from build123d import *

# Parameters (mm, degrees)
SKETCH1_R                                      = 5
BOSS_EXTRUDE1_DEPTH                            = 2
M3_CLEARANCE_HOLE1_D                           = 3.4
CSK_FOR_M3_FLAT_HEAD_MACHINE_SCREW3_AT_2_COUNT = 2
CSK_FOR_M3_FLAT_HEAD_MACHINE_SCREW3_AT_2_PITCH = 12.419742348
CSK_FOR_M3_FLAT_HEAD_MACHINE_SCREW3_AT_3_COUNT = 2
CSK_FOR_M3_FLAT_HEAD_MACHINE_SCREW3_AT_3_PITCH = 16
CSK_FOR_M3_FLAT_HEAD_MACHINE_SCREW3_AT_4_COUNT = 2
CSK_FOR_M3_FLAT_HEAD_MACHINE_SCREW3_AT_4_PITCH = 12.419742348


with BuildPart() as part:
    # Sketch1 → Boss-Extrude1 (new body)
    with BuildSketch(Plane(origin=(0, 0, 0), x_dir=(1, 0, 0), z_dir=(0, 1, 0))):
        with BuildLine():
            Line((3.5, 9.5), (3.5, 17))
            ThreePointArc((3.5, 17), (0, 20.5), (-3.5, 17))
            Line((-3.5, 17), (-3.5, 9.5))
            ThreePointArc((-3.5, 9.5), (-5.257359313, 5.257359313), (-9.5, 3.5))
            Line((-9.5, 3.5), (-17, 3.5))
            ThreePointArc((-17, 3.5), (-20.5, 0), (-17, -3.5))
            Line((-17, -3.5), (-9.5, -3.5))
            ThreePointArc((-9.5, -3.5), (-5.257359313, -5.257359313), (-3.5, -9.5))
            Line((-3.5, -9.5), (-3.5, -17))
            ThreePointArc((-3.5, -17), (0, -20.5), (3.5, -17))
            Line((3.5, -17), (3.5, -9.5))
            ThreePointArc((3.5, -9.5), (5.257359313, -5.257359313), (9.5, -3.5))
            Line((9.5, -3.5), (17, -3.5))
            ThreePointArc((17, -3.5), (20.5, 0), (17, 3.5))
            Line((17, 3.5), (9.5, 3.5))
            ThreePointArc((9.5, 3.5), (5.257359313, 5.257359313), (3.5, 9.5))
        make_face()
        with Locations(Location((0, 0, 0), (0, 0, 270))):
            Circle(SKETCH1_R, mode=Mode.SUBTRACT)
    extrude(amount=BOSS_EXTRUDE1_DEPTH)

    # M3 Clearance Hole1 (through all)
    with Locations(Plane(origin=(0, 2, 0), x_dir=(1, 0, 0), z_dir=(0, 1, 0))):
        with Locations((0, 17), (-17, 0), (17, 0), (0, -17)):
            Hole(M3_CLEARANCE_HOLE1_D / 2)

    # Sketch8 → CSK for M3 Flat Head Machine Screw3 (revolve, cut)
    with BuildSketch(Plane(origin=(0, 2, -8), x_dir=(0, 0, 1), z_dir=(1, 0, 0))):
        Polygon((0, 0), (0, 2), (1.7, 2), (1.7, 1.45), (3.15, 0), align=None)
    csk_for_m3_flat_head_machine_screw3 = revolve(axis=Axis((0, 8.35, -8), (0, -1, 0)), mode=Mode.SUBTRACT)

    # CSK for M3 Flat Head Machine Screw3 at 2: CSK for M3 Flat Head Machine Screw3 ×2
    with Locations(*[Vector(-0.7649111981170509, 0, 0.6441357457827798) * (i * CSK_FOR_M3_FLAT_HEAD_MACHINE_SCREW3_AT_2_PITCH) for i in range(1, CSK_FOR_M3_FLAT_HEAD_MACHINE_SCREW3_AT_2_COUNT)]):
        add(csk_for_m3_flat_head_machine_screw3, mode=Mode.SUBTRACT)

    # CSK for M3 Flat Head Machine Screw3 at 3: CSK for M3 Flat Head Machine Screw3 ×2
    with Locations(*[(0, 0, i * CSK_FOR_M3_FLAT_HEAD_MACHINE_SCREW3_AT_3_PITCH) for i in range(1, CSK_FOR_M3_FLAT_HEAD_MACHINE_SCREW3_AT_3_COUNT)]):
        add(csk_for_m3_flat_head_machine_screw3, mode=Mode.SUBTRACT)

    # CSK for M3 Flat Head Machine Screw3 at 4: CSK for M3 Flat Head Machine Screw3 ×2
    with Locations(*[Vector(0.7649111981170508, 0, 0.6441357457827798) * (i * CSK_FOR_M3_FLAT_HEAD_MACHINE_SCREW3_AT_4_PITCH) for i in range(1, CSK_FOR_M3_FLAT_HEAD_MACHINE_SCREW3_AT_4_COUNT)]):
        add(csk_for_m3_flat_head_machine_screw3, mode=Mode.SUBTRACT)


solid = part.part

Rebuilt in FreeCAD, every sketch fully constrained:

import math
import FreeCAD as App
import Part
import Sketcher
from FreeCAD import Vector
Q = App.Units.Quantity


def add_polygon(sketch, points):
    """Adds a closed chain of lines whose ends are joined by coincident constraints."""
    first, n = sketch.GeometryCount, len(points)
    for a, b in zip(points, points[1:] + points[:1]):
        sketch.addGeometry(Part.LineSegment(App.Vector(*a, 0), App.Vector(*b, 0)), False)
    for i in range(n):
        sketch.addConstraint(Sketcher.Constraint("Coincident", first + i, 2, first + (i + 1) % n, 1))

doc = App.newDocument("Part")
params = doc.addObject("Spreadsheet::Sheet", "Params")
for row, (alias, value) in enumerate([
    ("sketch1_diameter", "10 mm"),
    ("sketch1_radius", "6 mm"),
    ("sketch1_radius2", "3.5 mm"),
    ("sketch1_width", "7.5 mm"),
    ("pad1_length", "2 mm"),
    ("sketch2_diameter", "3.4 mm"),
    ("hole_diameter", "3.4 mm"),
    ("sketch3_width", "2 mm"),
    ("sketch3_height", "1.7 mm"),
    ("sketch3_width2", "0.55 mm"),
    ("groove_angle", "360 deg"),
    ("linearpattern_pitch", "12.419742 mm"),
    ("linearpattern2_pitch", "16 mm"),
    ("linearpattern3_pitch", "12.419742 mm"),
], start=1):
    params.set(f"A{row}", alias)
    params.set(f"B{row}", "=" + value)
    params.setAlias(f"B{row}", alias)

body = doc.addObject("PartDesign::Body", "Body")

# Sketch on XZ plane
sketch1 = body.newObject("Sketcher::SketchObject", "Sketch")
sketch1.AttachmentSupport = (doc.getObject("XZ_Plane"), [""])
sketch1.MapMode = "FlatFace"
sketch1.addGeometry([
    Part.LineSegment(Vector(3.5, -9.5, 0), Vector(3.5, -17, 0)),  # 0
    Part.ArcOfCircle(Part.Circle(Vector(0, -17, 0), Vector(0, 0, 1), 3.5), math.radians(180), math.radians(360)),  # 1
    Part.LineSegment(Vector(-3.5, -17, 0), Vector(-3.5, -9.5, 0)),  # 2
    Part.ArcOfCircle(Part.Circle(Vector(-9.5, -9.5, 0), Vector(0, 0, 1), 6), math.radians(0), math.radians(90)),  # 3
    Part.LineSegment(Vector(-9.5, -3.5, 0), Vector(-17, -3.5, 0)),  # 4
    Part.ArcOfCircle(Part.Circle(Vector(-17, 0, 0), Vector(0, 0, 1), 3.5), math.radians(90), math.radians(270)),  # 5
    Part.LineSegment(Vector(-17, 3.5, 0), Vector(-9.5, 3.5, 0)),  # 6
    Part.ArcOfCircle(Part.Circle(Vector(-9.5, 9.5, 0), Vector(0, 0, 1), 6), math.radians(-90), math.radians(0)),  # 7
    Part.LineSegment(Vector(-3.5, 9.5, 0), Vector(-3.5, 17, 0)),  # 8
    Part.ArcOfCircle(Part.Circle(Vector(0, 17, 0), Vector(0, 0, 1), 3.5), math.radians(0), math.radians(180)),  # 9
    Part.LineSegment(Vector(3.5, 17, 0), Vector(3.5, 9.5, 0)),  # 10
    Part.ArcOfCircle(Part.Circle(Vector(9.5, 9.5, 0), Vector(0, 0, 1), 6), math.radians(180), math.radians(270)),  # 11
    Part.LineSegment(Vector(9.5, 3.5, 0), Vector(17, 3.5, 0)),  # 12
    Part.ArcOfCircle(Part.Circle(Vector(17, 0, 0), Vector(0, 0, 1), 3.5), math.radians(-90), math.radians(90)),  # 13
    Part.LineSegment(Vector(17, -3.5, 0), Vector(9.5, -3.5, 0)),  # 14
    Part.ArcOfCircle(Part.Circle(Vector(9.5, -9.5, 0), Vector(0, 0, 1), 6), math.radians(90), math.radians(180)),  # 15
    Part.Circle(Vector(0, 0, 0), Vector(0, 0, 1), 5),  # 16
], False)
sketch1.addConstraint([
    Sketcher.Constraint("Tangent", 0, 2, 1, 2),
    Sketcher.Constraint("Tangent", 1, 1, 2, 1),
    Sketcher.Constraint("Tangent", 2, 2, 3, 1),
    Sketcher.Constraint("Tangent", 3, 2, 4, 1),
    Sketcher.Constraint("Tangent", 4, 2, 5, 2),
    Sketcher.Constraint("Tangent", 5, 1, 6, 1),
    Sketcher.Constraint("Tangent", 6, 2, 7, 1),
    Sketcher.Constraint("Tangent", 7, 2, 8, 1),
    Sketcher.Constraint("Tangent", 8, 2, 9, 2),
    Sketcher.Constraint("Tangent", 9, 1, 10, 1),
    Sketcher.Constraint("Tangent", 10, 2, 11, 1),
    Sketcher.Constraint("Tangent", 11, 2, 12, 1),
    Sketcher.Constraint("Tangent", 12, 2, 13, 2),
    Sketcher.Constraint("Tangent", 13, 1, 14, 1),
    Sketcher.Constraint("Tangent", 14, 2, 15, 1),
    Sketcher.Constraint("Tangent", 15, 2, 0, 1),
    Sketcher.Constraint("Vertical", 0),
    Sketcher.Constraint("Vertical", 2),
    Sketcher.Constraint("Horizontal", 4),
    Sketcher.Constraint("Horizontal", 6),
    Sketcher.Constraint("Vertical", 8),
    Sketcher.Constraint("Vertical", 10),
    Sketcher.Constraint("Horizontal", 12),
    Sketcher.Constraint("Horizontal", 14),
    Sketcher.Constraint("Coincident", 16, 3, -1, 1),
    Sketcher.Constraint("Equal", 1, 5),
    Sketcher.Constraint("Equal", 3, 7),
    Sketcher.Constraint("Equal", 5, 9),
    Sketcher.Constraint("Equal", 7, 11),
    Sketcher.Constraint("Equal", 9, 13),
    Sketcher.Constraint("Equal", 11, 15),
    Sketcher.Constraint("Symmetric", 1, 3, 9, 3, -1, 1),
    Sketcher.Constraint("Symmetric", 5, 3, 13, 3, -1, 1),
    Sketcher.Constraint("Symmetric", 7, 3, 11, 3, -2),
    Sketcher.Constraint("Equal", 14, 0),
    Sketcher.Constraint("Diameter", 16, 10.0),
    Sketcher.Constraint("Radius", 3, 6.0),
    Sketcher.Constraint("Radius", 1, 3.5),
    Sketcher.Constraint("DistanceX", 4, 2, 4, 1, 7.5),
])
sketch1.setExpression("Constraints[35]", "Params.sketch1_diameter")
sketch1.setExpression("Constraints[36]", "Params.sketch1_radius")
sketch1.setExpression("Constraints[37]", "Params.sketch1_radius2")
sketch1.setExpression("Constraints[38]", "Params.sketch1_width")
pad1 = body.newObject("PartDesign::Pad", "Pad")
pad1.Profile = sketch1
pad1.setExpression("Length", "Params.pad1_length")
pad1.Reversed = True

# Sketch on XZ plane
sketch2 = body.newObject("Sketcher::SketchObject", "Sketch001")
sketch2.AttachmentSupport = (doc.getObject("XZ_Plane"), [""])
sketch2.MapMode = "FlatFace"
sketch2.AttachmentOffset = App.Placement(Vector(0, 0, -2), App.Rotation())
sketch2.addGeometry([
    Part.Circle(Vector(0, -17, 0), Vector(0, 0, 1), 1.7),
    Part.Circle(Vector(-17, 0, 0), Vector(0, 0, 1), 1.7),
    Part.Circle(Vector(17, 0, 0), Vector(0, 0, 1), 1.7),
    Part.Circle(Vector(0, 17, 0), Vector(0, 0, 1), 1.7),
], False)
sketch2.addConstraint([
    Sketcher.Constraint("Equal", 0, 1),
    Sketcher.Constraint("Equal", 1, 2),
    Sketcher.Constraint("Equal", 2, 3),
    Sketcher.Constraint("Symmetric", 1, 3, 2, 3, -1, 1),
    Sketcher.Constraint("Symmetric", 0, 3, 3, 3, -1, 1),
    Sketcher.Constraint("PointOnObject", 0, 3, -2),
    Sketcher.Constraint("PointOnObject", 1, 3, -1),
    Sketcher.Constraint("Diameter", 0, 3.4),
    Sketcher.Constraint("DistanceY", 0, 3, -1, 1, 17.0),
    Sketcher.Constraint("DistanceX", 1, 3, -1, 1, 17.0),
])
sketch2.setExpression("Constraints[7]", "Params.sketch2_diameter")
doc.recompute()
hole = body.newObject("PartDesign::Hole", "Hole")
hole.Profile = sketch2
hole.ThreadType = "None"
hole.setExpression("Diameter", "Params.hole_diameter")
hole.DepthType = "ThroughAll"
hole.Reversed = True

# Sketch on YZ plane
sketch3 = body.newObject("Sketcher::SketchObject", "Sketch002")
sketch3.AttachmentSupport = (doc.getObject("YZ_Plane"), [""])
sketch3.MapMode = "FlatFace"
add_polygon(sketch3, [(0, -8), (2, -8), (2, -4.8), (0.6, -6.3), (0, -6.3)])  # lines 0-4
sketch3.addGeometry(Part.LineSegment(Vector(2, -8, 0), Vector(0, -8, 0)), True)  # axis
sketch3.addConstraint([
    Sketcher.Constraint("Horizontal", 0),
    Sketcher.Constraint("Vertical", 1),
    Sketcher.Constraint("Horizontal", 3),
    Sketcher.Constraint("Vertical", 4),
    Sketcher.Constraint("Horizontal", 5),
    Sketcher.Constraint("Coincident", 5, 1, 0, 2),
    Sketcher.Constraint("PointOnObject", 3, 2, -2),
    Sketcher.Constraint("PointOnObject", 5, 2, -2),
    Sketcher.Constraint("DistanceX", 0, 1, 0, 2, 2.0),
    Sketcher.Constraint("Angle", 2, Q("-135 deg")),
    Sketcher.Constraint("DistanceY", 4, 2, 4, 1, 1.7),
    Sketcher.Constraint("DistanceY", 0, 2, -1, 1, 8.0),
    Sketcher.Constraint("DistanceX", 3, 2, 3, 1, 0.55),
])
sketch3.setExpression("Constraints[13]", "Params.sketch3_width")
sketch3.setExpression("Constraints[15]", "Params.sketch3_height")
sketch3.setExpression("Constraints[17]", "Params.sketch3_width2")
groove = body.newObject("PartDesign::Groove", "Groove")
groove.Profile = sketch3
groove.ReferenceAxis = (sketch3, ["Axis0"])
groove.setExpression("Angle", "Params.groove_angle")
doc.recompute()

datumline = body.newObject("PartDesign::Line", "DatumLine")
datumline.Placement = App.Placement(Vector(0, 0, 0), App.Rotation(Vector(0, 0, 1), Vector(-0.764911198, 0, 0.644135746)))
linearpattern = body.newObject("PartDesign::LinearPattern", "LinearPattern")
linearpattern.Originals = [groove]
linearpattern.Direction = (datumline, [""])
linearpattern.Mode = "offset"
linearpattern.setExpression("Offset", "Params.linearpattern_pitch")
linearpattern.Occurrences = 2
body.Tip = linearpattern
doc.recompute()

linearpattern2 = body.newObject("PartDesign::LinearPattern", "LinearPattern001")
linearpattern2.Originals = [groove]
linearpattern2.Direction = (doc.getObject("Z_Axis"), [""])
linearpattern2.Mode = "offset"
linearpattern2.setExpression("Offset", "Params.linearpattern2_pitch")
linearpattern2.Occurrences = 2
body.Tip = linearpattern2
doc.recompute()

datumline2 = body.newObject("PartDesign::Line", "DatumLine001")
datumline2.Placement = App.Placement(Vector(0, 0, 0), App.Rotation(Vector(0, 0, 1), Vector(0.764911198, 0, 0.644135746)))
linearpattern3 = body.newObject("PartDesign::LinearPattern", "LinearPattern002")
linearpattern3.Originals = [groove]
linearpattern3.Direction = (datumline2, [""])
linearpattern3.Mode = "offset"
linearpattern3.setExpression("Offset", "Params.linearpattern3_pitch")
linearpattern3.Occurrences = 2
body.Tip = linearpattern3

doc.recompute()
